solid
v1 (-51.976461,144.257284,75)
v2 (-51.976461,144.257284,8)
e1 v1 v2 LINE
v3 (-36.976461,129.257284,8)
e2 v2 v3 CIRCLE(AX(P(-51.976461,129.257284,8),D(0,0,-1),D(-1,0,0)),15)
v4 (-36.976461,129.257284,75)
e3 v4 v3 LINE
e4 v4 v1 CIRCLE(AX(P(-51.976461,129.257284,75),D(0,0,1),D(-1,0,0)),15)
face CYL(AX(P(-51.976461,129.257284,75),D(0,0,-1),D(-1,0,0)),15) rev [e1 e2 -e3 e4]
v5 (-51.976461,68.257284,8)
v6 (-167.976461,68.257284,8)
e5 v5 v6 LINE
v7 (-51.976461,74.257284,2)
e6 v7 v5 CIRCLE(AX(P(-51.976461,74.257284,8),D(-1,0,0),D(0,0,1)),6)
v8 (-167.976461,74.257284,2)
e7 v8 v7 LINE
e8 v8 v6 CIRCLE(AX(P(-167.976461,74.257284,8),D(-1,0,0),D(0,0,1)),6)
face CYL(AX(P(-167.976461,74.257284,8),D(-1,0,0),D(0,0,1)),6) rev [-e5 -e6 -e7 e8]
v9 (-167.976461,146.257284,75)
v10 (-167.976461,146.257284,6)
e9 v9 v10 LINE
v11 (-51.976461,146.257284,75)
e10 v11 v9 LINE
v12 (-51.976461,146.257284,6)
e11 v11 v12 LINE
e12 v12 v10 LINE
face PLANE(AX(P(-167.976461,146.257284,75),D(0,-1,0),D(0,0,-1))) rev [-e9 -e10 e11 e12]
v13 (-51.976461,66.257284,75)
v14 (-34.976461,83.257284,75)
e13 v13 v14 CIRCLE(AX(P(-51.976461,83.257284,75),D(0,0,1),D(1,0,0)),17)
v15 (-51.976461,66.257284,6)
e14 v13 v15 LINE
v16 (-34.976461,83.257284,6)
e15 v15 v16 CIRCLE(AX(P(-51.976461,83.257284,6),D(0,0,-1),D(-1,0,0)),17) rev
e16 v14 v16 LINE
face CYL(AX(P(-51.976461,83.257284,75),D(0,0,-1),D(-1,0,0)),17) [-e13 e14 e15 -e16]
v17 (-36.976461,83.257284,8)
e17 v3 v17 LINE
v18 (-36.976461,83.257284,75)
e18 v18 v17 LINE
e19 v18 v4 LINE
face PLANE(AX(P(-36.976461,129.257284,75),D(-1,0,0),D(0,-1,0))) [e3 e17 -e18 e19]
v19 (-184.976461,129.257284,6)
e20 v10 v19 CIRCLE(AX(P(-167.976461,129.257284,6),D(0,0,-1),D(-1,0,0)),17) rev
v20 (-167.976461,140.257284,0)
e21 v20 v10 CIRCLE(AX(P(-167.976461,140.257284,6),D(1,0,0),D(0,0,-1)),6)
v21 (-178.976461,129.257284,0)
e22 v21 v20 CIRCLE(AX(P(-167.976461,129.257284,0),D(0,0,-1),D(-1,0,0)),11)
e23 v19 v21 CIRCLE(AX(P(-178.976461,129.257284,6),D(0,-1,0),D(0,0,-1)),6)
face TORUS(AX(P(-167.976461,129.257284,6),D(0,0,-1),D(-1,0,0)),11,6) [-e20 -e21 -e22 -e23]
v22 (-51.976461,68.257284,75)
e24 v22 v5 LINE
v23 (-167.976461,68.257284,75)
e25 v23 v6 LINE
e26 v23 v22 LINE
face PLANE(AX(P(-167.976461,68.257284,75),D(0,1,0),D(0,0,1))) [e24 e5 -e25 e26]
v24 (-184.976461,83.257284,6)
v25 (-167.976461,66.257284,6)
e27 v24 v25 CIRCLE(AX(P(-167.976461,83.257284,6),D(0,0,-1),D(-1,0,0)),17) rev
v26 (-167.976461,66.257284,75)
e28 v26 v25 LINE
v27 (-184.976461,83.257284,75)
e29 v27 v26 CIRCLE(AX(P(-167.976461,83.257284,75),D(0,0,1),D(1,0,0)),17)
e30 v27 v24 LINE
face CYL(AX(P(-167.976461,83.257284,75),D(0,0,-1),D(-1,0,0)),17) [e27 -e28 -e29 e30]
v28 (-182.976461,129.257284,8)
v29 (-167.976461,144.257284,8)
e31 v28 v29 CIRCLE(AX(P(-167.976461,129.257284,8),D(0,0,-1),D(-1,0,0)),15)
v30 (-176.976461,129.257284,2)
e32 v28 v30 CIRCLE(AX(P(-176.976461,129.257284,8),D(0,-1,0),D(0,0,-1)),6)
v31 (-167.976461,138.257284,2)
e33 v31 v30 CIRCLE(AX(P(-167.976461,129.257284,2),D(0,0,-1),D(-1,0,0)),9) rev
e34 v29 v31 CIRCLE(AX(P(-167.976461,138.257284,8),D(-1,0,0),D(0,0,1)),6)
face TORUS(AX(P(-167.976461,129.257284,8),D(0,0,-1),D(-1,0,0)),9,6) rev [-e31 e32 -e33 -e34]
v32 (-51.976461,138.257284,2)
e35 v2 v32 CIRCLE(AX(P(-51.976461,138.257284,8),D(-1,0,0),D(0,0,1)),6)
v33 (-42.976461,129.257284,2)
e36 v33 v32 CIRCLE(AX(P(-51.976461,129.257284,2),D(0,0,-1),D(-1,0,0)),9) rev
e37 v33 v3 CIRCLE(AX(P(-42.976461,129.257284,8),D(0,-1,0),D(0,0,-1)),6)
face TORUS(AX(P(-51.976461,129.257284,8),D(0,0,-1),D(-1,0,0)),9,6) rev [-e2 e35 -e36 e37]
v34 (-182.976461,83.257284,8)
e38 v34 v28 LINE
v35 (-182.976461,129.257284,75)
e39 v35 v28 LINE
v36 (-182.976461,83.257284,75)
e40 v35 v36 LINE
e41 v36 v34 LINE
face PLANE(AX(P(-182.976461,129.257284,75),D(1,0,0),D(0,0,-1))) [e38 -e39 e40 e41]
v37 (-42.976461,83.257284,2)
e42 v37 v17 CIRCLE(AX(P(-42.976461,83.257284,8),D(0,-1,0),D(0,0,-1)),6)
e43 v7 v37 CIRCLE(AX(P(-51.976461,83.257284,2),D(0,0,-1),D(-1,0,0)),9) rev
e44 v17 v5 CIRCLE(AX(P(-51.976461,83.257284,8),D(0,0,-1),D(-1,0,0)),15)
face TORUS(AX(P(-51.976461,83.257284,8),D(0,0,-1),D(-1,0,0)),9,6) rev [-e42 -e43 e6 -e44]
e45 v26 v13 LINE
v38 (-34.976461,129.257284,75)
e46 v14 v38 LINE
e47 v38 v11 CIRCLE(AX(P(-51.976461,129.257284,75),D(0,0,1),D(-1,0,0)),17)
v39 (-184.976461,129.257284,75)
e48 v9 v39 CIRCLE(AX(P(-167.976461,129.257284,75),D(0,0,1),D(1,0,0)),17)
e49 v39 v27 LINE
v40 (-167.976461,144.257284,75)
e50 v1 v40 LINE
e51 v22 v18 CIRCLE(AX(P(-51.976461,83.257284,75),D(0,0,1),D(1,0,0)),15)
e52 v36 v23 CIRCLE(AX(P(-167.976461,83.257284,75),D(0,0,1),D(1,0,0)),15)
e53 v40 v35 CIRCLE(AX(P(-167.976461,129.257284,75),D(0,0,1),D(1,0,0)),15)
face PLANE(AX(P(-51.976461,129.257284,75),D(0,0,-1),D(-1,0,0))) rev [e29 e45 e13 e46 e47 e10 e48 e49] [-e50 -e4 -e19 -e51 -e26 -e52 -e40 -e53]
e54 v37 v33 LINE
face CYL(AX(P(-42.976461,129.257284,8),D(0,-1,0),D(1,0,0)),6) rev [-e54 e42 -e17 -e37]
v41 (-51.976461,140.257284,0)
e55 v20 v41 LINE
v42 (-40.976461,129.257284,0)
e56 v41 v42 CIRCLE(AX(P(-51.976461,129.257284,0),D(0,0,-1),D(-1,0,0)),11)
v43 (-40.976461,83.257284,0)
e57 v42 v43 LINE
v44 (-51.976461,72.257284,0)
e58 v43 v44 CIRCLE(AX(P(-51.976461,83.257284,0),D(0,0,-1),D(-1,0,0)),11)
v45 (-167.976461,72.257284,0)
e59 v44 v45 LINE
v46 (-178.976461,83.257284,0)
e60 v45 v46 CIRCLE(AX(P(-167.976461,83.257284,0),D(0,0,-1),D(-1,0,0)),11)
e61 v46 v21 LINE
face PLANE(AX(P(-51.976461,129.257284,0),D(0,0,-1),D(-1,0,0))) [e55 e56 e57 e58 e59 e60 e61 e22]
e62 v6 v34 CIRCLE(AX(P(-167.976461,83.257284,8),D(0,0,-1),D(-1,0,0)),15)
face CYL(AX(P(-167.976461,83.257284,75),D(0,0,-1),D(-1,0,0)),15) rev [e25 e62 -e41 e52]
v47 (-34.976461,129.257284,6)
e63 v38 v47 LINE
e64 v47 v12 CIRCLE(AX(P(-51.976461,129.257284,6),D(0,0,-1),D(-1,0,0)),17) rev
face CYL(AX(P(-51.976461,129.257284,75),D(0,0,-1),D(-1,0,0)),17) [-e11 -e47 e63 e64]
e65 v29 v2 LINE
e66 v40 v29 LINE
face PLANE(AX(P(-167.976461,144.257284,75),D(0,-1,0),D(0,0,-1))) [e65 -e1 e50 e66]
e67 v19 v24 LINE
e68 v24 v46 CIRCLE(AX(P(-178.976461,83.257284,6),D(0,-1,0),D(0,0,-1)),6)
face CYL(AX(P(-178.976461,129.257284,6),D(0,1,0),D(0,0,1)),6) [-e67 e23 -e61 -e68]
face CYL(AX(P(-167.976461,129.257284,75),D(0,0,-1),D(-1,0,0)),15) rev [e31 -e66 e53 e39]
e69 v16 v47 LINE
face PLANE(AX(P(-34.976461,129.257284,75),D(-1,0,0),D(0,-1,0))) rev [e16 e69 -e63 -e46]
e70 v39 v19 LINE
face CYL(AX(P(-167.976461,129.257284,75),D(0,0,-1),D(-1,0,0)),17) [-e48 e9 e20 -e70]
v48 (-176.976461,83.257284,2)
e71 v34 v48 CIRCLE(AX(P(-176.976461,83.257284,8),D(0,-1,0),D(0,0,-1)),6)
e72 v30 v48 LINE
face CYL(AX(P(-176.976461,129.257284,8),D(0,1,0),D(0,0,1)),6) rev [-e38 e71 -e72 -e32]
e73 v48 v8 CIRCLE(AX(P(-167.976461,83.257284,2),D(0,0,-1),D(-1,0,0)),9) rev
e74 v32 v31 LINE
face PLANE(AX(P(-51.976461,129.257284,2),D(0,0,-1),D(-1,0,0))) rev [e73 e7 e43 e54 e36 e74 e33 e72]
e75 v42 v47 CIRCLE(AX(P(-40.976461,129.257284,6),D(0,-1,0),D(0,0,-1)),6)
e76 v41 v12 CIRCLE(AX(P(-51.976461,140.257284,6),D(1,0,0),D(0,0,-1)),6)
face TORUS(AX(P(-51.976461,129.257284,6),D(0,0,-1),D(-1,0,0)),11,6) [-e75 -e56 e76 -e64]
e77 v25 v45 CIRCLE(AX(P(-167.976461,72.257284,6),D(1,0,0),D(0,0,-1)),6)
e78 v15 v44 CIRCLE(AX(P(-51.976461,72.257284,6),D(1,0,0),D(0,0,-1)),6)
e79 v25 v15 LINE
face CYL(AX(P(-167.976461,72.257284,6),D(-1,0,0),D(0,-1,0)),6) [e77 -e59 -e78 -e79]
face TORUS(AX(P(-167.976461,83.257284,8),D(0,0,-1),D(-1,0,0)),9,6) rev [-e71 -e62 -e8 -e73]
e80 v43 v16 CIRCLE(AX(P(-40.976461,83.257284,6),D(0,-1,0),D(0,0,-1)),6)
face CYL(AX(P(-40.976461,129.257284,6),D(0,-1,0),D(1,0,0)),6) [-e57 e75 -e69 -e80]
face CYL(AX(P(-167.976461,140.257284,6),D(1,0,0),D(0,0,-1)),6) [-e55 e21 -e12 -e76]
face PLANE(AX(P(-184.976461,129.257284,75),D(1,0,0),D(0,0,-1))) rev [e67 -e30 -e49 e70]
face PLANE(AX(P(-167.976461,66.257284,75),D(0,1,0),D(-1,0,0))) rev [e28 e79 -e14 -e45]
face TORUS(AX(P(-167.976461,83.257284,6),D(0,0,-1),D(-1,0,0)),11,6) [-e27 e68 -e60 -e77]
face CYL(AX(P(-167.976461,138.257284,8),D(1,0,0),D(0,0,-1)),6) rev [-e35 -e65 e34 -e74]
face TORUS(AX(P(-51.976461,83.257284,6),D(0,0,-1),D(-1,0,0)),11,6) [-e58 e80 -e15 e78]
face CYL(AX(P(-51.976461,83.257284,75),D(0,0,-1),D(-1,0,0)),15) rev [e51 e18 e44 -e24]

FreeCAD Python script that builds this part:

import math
import FreeCAD as App
import Part
import Sketcher
Q = App.Units.Quantity


def edges_at(feature, points):
    """Names of the edges that pass closest to the given points."""
    edges = feature.Shape.Edges
    near = lambda p: min(range(len(edges)), key=lambda i: edges[i].distToShape(Part.Vertex(*p))[0])
    return sorted({f"Edge{near(p) + 1}" for p in points})

doc = App.newDocument("Part")
body = doc.addObject("PartDesign::Body", "Body")

sketch1 = body.newObject("Sketcher::SketchObject", "Sketch")
sketch1.AttachmentSupport = (doc.getObject("XY_Plane"), [""])
sketch1.MapMode = "FlatFace"
sketch1.addGeometry([
    Part.LineSegment(App.Vector(-52, 146, 0), App.Vector(-168, 146, 0)),
    Part.ArcOfCircle(Part.Circle(App.Vector(-168, 129, 0), App.Vector(0, 0, 1), 17), math.radians(90), math.radians(180)),
    Part.LineSegment(App.Vector(-185, 129, 0), App.Vector(-185, 83, 0)),
    Part.ArcOfCircle(Part.Circle(App.Vector(-168, 83, 0), App.Vector(0, 0, 1), 17), math.radians(-180), math.radians(-90)),
    Part.LineSegment(App.Vector(-168, 66, 0), App.Vector(-52, 66, 0)),
    Part.ArcOfCircle(Part.Circle(App.Vector(-52, 83, 0), App.Vector(0, 0, 1), 17), math.radians(-90), math.radians(0)),
    Part.LineSegment(App.Vector(-35, 83, 0), App.Vector(-35, 129, 0)),
    Part.ArcOfCircle(Part.Circle(App.Vector(-52, 129, 0), App.Vector(0, 0, 1), 17), math.radians(0), math.radians(90)),
    Part.LineSegment(App.Vector(-168, 144, 0), App.Vector(-52, 144, 0)),
    Part.ArcOfCircle(Part.Circle(App.Vector(-52, 129, 0), App.Vector(0, 0, 1), 15), math.radians(0), math.radians(90)),
    Part.LineSegment(App.Vector(-37, 129, 0), App.Vector(-37, 83, 0)),
    Part.ArcOfCircle(Part.Circle(App.Vector(-52, 83, 0), App.Vector(0, 0, 1), 15), math.radians(-90), math.radians(0)),
    Part.LineSegment(App.Vector(-52, 68, 0), App.Vector(-168, 68, 0)),
    Part.ArcOfCircle(Part.Circle(App.Vector(-168, 83, 0), App.Vector(0, 0, 1), 15), math.radians(-180), math.radians(-90)),
    Part.LineSegment(App.Vector(-183, 83, 0), App.Vector(-183, 129, 0)),
    Part.ArcOfCircle(Part.Circle(App.Vector(-168, 129, 0), App.Vector(0, 0, 1), 15), math.radians(90), math.radians(180)),
], False)
sketch1.addConstraint([
    Sketcher.Constraint("Tangent", 0, 2, 1, 1),
    Sketcher.Constraint("Tangent", 1, 2, 2, 1),
    Sketcher.Constraint("Tangent", 2, 2, 3, 1),
    Sketcher.Constraint("Tangent", 3, 2, 4, 1),
    Sketcher.Constraint("Tangent", 4, 2, 5, 1),
    Sketcher.Constraint("Tangent", 5, 2, 6, 1),
    Sketcher.Constraint("Tangent", 6, 2, 7, 1),
    Sketcher.Constraint("Tangent", 7, 2, 0, 1),
    Sketcher.Constraint("Tangent", 8, 2, 9, 2),
    Sketcher.Constraint("Tangent", 9, 1, 10, 1),
    Sketcher.Constraint("Tangent", 10, 2, 11, 2),
    Sketcher.Constraint("Tangent", 11, 1, 12, 1),
    Sketcher.Constraint("Tangent", 12, 2, 13, 2),
    Sketcher.Constraint("Tangent", 13, 1, 14, 1),
    Sketcher.Constraint("Tangent", 14, 2, 15, 2),
    Sketcher.Constraint("Tangent", 15, 1, 8, 1),
    Sketcher.Constraint("Horizontal", 0),
    Sketcher.Constraint("Vertical", 2),
    Sketcher.Constraint("Horizontal", 4),
    Sketcher.Constraint("Vertical", 6),
    Sketcher.Constraint("Horizontal", 8),
    Sketcher.Constraint("Vertical", 10),
    Sketcher.Constraint("Horizontal", 12),
    Sketcher.Constraint("Vertical", 14),
    Sketcher.Constraint("Coincident", 9, 3, 7, 3),
    Sketcher.Constraint("Coincident", 11, 3, 5, 3),
    Sketcher.Constraint("Coincident", 13, 3, 3, 3),
    Sketcher.Constraint("Equal", 1, 3),
    Sketcher.Constraint("Equal", 3, 5),
    Sketcher.Constraint("Equal", 5, 7),
    Sketcher.Constraint("Equal", 13, 15),
    Sketcher.Constraint("Radius", 1, Q("17 mm")),
    Sketcher.Constraint("Radius", 9, Q("15 mm")),
    Sketcher.Constraint("DistanceX", 0, 2, 0, 1, Q("116 mm")),
    Sketcher.Constraint("DistanceY", 2, 2, 2, 1, Q("46 mm")),
    Sketcher.Constraint("DistanceX", 1, 3, -1, 1, Q("167.976461 mm")),
    Sketcher.Constraint("DistanceY", -1, 1, 1, 3, Q("129.257284 mm")),
])
pad1 = body.newObject("PartDesign::Pad", "Pad")
pad1.Profile = sketch1
pad1.Length = 75

sketch2 = body.newObject("Sketcher::SketchObject", "Sketch001")
sketch2.AttachmentSupport = (doc.getObject("XY_Plane"), [""])
sketch2.MapMode = "FlatFace"
sketch2.addGeometry([
    Part.LineSegment(App.Vector(-35, 129, 0), App.Vector(-35, 83, 0)),
    Part.ArcOfCircle(Part.Circle(App.Vector(-52, 83, 0), App.Vector(0, 0, 1), 17), math.radians(-90), math.radians(0)),
    Part.LineSegment(App.Vector(-52, 66, 0), App.Vector(-168, 66, 0)),
    Part.ArcOfCircle(Part.Circle(App.Vector(-168, 83, 0), App.Vector(0, 0, 1), 17), math.radians(-180), math.radians(-90)),
    Part.LineSegment(App.Vector(-185, 83, 0), App.Vector(-185, 129, 0)),
    Part.ArcOfCircle(Part.Circle(App.Vector(-168, 129, 0), App.Vector(0, 0, 1), 17), math.radians(90), math.radians(180)),
    Part.LineSegment(App.Vector(-168, 146, 0), App.Vector(-52, 146, 0)),
    Part.ArcOfCircle(Part.Circle(App.Vector(-52, 129, 0), App.Vector(0, 0, 1), 17), math.radians(0), math.radians(90)),
], False)
sketch2.addConstraint([
    Sketcher.Constraint("Tangent", 0, 2, 1, 2),
    Sketcher.Constraint("Tangent", 1, 1, 2, 1),
    Sketcher.Constraint("Tangent", 2, 2, 3, 2),
    Sketcher.Constraint("Tangent", 3, 1, 4, 1),
    Sketcher.Constraint("Tangent", 4, 2, 5, 2),
    Sketcher.Constraint("Tangent", 5, 1, 6, 1),
    Sketcher.Constraint("Tangent", 6, 2, 7, 2),
    Sketcher.Constraint("Tangent", 7, 1, 0, 1),
    Sketcher.Constraint("Vertical", 0),
    Sketcher.Constraint("Horizontal", 2),
    Sketcher.Constraint("Vertical", 4),
    Sketcher.Constraint("Horizontal", 6),
    Sketcher.Constraint("Equal", 1, 3),
    Sketcher.Constraint("Equal", 3, 5),
    Sketcher.Constraint("Equal", 5, 7),
    Sketcher.Constraint("Radius", 1, Q("17 mm")),
    Sketcher.Constraint("DistanceX", 2, 2, 2, 1, Q("116 mm")),
    Sketcher.Constraint("DistanceY", 0, 2, 0, 1, Q("46 mm")),
    Sketcher.Constraint("DistanceX", 1, 3, -1, 1, Q("51.976461 mm")),
    Sketcher.Constraint("DistanceY", -1, 1, 1, 3, Q("83.257284 mm")),
])
pad2 = body.newObject("PartDesign::Pad", "Pad001")
pad2.Profile = sketch2
pad2.Length = 2
doc.recompute()

fillet = body.newObject("PartDesign::Fillet", "Fillet")
fillet.Base = (pad2, edges_at(pad2, [
    (-184.976, 106.257, 0),
    (-179.997, 141.278, 0),
    (-109.976, 146.257, 0),
    (-39.956, 141.278, 0),
    (-109.976, 144.257, 2),
    (-182.976, 106.257, 2),
    (-178.583, 139.864, 2),
    (-41.37, 139.864, 2),
    (-36.976, 106.257, 2),
    (-41.37, 72.651, 2),
    (-109.976, 68.257, 2),
    (-178.583, 72.651, 2),
    (-34.976, 106.257, 0),
    (-39.956, 71.236, 0),
    (-109.976, 66.257, 0),
    (-179.997, 71.236, 0),
]))
fillet.Radius = 6

doc.recompute()
